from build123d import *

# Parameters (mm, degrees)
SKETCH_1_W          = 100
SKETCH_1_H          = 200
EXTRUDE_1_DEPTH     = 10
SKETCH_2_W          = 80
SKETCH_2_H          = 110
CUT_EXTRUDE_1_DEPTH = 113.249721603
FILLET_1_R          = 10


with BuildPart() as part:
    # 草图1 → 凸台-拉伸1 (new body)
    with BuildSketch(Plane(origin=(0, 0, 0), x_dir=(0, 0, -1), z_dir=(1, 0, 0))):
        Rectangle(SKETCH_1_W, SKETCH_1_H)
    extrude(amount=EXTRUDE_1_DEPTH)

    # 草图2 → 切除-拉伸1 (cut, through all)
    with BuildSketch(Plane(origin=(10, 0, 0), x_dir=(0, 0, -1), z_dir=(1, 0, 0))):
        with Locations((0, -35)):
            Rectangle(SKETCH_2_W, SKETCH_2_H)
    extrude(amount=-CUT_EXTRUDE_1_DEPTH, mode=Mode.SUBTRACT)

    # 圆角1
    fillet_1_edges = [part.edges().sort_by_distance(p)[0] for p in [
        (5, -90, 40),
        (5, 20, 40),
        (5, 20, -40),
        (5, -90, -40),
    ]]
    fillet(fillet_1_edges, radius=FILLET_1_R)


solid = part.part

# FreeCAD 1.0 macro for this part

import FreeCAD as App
import Part
import Sketcher
from FreeCAD import Vector
Q = App.Units.Quantity


def edges_at(feature, points):
    """Names of the edges that pass closest to the given points."""
    edges = feature.Shape.Edges
    near = lambda p: min(range(len(edges)), key=lambda i: edges[i].distToShape(Part.Vertex(*p))[0])
    return sorted({f"Edge{near(p) + 1}" for p in points})

doc = App.newDocument("Part")
params = doc.addObject("Spreadsheet::Sheet", "Params")
for row, (alias, value) in enumerate([
    ("sketch1_width", "200 mm"),
    ("sketch1_height", "100 mm"),
    ("pad1_length", "10 mm"),
    ("sketch2_width", "110 mm"),
    ("sketch2_height", "80 mm"),
    ("fillet_radius", "10 mm"),
], start=1):
    params.set(f"A{row}", alias)
    params.set(f"B{row}", "=" + value)
    params.setAlias(f"B{row}", alias)

body = doc.addObject("PartDesign::Body", "Body")

# Sketch on YZ plane
sketch1 = body.newObject("Sketcher::SketchObject", "Sketch")
sketch1.AttachmentSupport = (doc.getObject("YZ_Plane"), [""])
sketch1.MapMode = "FlatFace"
sketch1.addGeometry([
    Part.LineSegment(Vector(100, 50, 0), Vector(-100, 50, 0)),
    Part.LineSegment(Vector(-100, 50, 0), Vector(-100, -50, 0)),
    Part.LineSegment(Vector(-100, -50, 0), Vector(100, -50, 0)),
    Part.LineSegment(Vector(100, -50, 0), Vector(100, 50, 0)),
], False)
sketch1.addConstraint([
    Sketcher.Constraint("Coincident", 0, 2, 1, 1),
    Sketcher.Constraint("Coincident", 1, 2, 2, 1),
    Sketcher.Constraint("Coincident", 2, 2, 3, 1),
    Sketcher.Constraint("Coincident", 3, 2, 0, 1),
    Sketcher.Constraint("Horizontal", 0),
    Sketcher.Constraint("Vertical", 1),
    Sketcher.Constraint("Horizontal", 2),
    Sketcher.Constraint("Vertical", 3),
    Sketcher.Constraint("Symmetric", 0, 2, 2, 2, -1, 1),
    Sketcher.Constraint("DistanceX", 0, 2, 0, 1, Q("200 mm")),
    Sketcher.Constraint("DistanceY", 1, 2, 1, 1, Q("100 mm")),
])
sketch1.setExpression("Constraints[9]", "Params.sketch1_width")
sketch1.setExpression("Constraints[10]", "Params.sketch1_height")
pad1 = body.newObject("PartDesign::Pad", "Pad")
pad1.Profile = sketch1
pad1.setExpression("Length", "Params.pad1_length")

# Sketch on YZ plane
sketch2 = body.newObject("Sketcher::SketchObject", "Sketch001")
sketch2.AttachmentSupport = (doc.getObject("YZ_Plane"), [""])
sketch2.MapMode = "FlatFace"
sketch2.AttachmentOffset = App.Placement(Vector(0, 0, 10), App.Rotation())
sketch2.addGeometry([
    Part.LineSegment(Vector(20, 40, 0), Vector(-90, 40, 0)),
    Part.LineSegment(Vector(-90, 40, 0), Vector(-90, -40, 0)),
    Part.LineSegment(Vector(-90, -40, 0), Vector(20, -40, 0)),
    Part.LineSegment(Vector(20, -40, 0), Vector(20, 40, 0)),
], False)
sketch2.addConstraint([
    Sketcher.Constraint("Coincident", 0, 2, 1, 1),
    Sketcher.Constraint("Coincident", 1, 2, 2, 1),
    Sketcher.Constraint("Coincident", 2, 2, 3, 1),
    Sketcher.Constraint("Coincident", 3, 2, 0, 1),
    Sketcher.Constraint("Horizontal", 0),
    Sketcher.Constraint("Vertical", 1),
    Sketcher.Constraint("Horizontal", 2),
    Sketcher.Constraint("Vertical", 3),
    Sketcher.Constraint("DistanceX", 0, 2, 0, 1, Q("110 mm")),
    Sketcher.Constraint("DistanceY", 1, 2, 1, 1, Q("80 mm")),
    Sketcher.Constraint("DistanceX", 0, 2, -1, 1, Q("90 mm")),
    Sketcher.Constraint("DistanceY", -1, 1, 0, 2, Q("40 mm")),
])
sketch2.setExpression("Constraints[8]", "Params.sketch2_width")
sketch2.setExpression("Constraints[9]", "Params.sketch2_height")
pocket1 = body.newObject("PartDesign::Pocket", "Pocket")
pocket1.Profile = sketch2
pocket1.Type = "ThroughAll"
doc.recompute()

fillet = body.newObject("PartDesign::Fillet", "Fillet")
fillet.Base = (pocket1, edges_at(pocket1, [
    (5, -90, 40),
    (5, 20, 40),
    (5, 20, -40),
    (5, -90, -40),
]))
fillet.setExpression("Radius", "Params.fillet_radius")

doc.recompute()
